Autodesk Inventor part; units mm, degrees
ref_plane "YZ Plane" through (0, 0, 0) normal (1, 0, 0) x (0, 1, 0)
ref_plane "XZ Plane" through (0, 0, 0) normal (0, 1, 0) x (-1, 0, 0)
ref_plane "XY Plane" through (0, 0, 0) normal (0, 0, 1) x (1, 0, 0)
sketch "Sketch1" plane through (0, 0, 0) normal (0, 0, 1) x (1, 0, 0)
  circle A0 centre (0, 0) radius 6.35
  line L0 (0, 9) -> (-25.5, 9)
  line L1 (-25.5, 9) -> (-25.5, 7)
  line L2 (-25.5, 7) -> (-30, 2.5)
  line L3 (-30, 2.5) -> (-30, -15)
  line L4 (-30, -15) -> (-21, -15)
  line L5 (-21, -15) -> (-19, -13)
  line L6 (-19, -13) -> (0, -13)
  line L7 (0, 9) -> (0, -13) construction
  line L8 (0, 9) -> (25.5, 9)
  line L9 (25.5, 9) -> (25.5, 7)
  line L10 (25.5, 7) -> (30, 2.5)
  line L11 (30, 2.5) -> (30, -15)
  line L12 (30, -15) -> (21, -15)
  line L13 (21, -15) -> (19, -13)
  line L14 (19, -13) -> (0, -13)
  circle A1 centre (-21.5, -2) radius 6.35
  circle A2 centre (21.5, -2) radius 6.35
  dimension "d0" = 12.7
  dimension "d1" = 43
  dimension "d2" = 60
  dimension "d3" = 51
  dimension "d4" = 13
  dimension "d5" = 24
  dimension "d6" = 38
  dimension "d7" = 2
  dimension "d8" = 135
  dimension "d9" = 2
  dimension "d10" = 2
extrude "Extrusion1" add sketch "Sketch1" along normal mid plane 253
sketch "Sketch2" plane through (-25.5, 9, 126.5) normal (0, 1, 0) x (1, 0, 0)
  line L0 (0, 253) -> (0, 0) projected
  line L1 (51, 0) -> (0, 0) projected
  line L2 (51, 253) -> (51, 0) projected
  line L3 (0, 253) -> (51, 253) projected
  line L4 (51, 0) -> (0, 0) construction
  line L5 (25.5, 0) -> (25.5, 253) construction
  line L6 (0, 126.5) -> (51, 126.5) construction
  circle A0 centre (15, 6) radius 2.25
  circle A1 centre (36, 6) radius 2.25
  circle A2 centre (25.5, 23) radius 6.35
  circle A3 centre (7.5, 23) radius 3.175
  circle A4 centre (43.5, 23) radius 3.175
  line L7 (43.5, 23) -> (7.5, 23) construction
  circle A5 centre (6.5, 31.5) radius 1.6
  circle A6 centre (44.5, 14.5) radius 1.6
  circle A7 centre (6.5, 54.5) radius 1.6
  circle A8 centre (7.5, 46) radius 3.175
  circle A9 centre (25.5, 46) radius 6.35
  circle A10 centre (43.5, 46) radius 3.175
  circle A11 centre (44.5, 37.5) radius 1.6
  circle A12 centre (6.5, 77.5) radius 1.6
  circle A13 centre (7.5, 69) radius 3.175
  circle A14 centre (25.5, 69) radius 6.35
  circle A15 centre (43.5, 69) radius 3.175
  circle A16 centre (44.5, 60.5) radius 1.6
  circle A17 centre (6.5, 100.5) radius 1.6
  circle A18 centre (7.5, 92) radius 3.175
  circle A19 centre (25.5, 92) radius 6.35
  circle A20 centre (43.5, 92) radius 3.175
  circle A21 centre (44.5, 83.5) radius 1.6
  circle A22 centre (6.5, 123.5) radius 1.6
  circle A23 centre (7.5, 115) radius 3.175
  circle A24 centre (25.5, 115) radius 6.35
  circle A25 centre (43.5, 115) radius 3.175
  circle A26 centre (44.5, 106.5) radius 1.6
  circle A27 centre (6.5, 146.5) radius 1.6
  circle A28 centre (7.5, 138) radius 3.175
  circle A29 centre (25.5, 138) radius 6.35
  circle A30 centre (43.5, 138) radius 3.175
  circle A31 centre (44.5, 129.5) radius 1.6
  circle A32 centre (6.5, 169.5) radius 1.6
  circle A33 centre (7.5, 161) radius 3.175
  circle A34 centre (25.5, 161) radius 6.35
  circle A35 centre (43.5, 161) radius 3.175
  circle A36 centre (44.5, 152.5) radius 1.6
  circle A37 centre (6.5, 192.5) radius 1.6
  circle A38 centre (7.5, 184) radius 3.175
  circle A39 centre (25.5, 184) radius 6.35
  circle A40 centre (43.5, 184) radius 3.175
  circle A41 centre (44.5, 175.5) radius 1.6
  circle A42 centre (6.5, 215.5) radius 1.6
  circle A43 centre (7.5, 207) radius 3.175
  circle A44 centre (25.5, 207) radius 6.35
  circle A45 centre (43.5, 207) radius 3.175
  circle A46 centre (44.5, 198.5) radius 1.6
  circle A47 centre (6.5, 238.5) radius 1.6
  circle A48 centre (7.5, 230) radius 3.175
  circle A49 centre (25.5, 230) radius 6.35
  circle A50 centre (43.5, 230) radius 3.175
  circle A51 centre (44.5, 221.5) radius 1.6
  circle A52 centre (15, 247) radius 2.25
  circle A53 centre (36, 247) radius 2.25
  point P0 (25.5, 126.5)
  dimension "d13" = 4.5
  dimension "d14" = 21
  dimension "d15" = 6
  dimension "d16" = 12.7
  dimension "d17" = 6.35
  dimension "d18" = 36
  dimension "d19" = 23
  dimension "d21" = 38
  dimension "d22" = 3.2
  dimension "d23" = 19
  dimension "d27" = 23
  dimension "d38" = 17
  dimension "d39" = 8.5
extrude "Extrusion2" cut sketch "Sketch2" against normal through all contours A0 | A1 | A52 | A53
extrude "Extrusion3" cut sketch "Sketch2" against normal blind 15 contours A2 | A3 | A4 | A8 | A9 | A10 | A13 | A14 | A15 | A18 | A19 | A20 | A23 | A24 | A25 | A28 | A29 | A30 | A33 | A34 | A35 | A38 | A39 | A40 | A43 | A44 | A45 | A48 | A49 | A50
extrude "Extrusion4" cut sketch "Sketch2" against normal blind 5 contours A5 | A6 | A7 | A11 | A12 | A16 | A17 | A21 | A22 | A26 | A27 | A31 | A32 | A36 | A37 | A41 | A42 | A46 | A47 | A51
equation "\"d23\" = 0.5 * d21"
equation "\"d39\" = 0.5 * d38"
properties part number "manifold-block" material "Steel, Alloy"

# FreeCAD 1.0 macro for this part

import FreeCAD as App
import Part
import Sketcher

V = App.Vector
Q = App.Units.Quantity


def add_polygon(sketch, points):
    """Adds a closed chain of lines whose ends are joined by coincident constraints."""
    first, n = sketch.GeometryCount, len(points)
    for a, b in zip(points, points[1:] + points[:1]):
        sketch.addGeometry(Part.LineSegment(App.Vector(*a, 0), App.Vector(*b, 0)), False)
    for i in range(n):
        sketch.addConstraint(Sketcher.Constraint("Coincident", first + i, 2, first + (i + 1) % n, 1))

doc = App.newDocument("Part")
params = doc.addObject("Spreadsheet::Sheet", "Params")
for row, (alias, value) in enumerate([
    ("sketch1_diameter", "12.7 mm"),
    ("sketch1_width", "51 mm"),
    ("sketch1_width2", "38 mm"),
    ("sketch1_height", "2 mm"),
    ("sketch1_width3", "9 mm"),
    ("pad1_length", "253 mm"),
    ("sketch2_diameter", "4.5 mm"),
    ("sketch3_diameter", "12.7 mm"),
    ("sketch3_diameter2", "6.35 mm"),
    ("pocket2_length", "15 mm"),
    ("sketch4_diameter", "3.2 mm"),
    ("pocket3_length", "5 mm"),
], start=1):
    params.set(f"A{row}", alias)
    params.set(f"B{row}", "=" + value)
    params.setAlias(f"B{row}", alias)

body = doc.addObject("PartDesign::Body", "Body")

# Sketch on XY plane
sketch1 = body.newObject("Sketcher::SketchObject", "Sketch")
sketch1.AttachmentSupport = (doc.getObject("XY_Plane"), [""])
sketch1.MapMode = "FlatFace"
add_polygon(sketch1, [(25.5, 9), (-25.5, 9), (-25.5, 7), (-30, 2.5), (-30, -15), (-21, -15), (-19, -13), (19, -13), (21, -15), (30, -15), (30, 2.5), (25.5, 7)])  # lines 0-11
sketch1.addGeometry(Part.Circle(V(-21.5, -2, 0), V(0, 0, 1), 6.3), False)  # 12
sketch1.addGeometry(Part.Circle(V(0, 0, 0), V(0, 0, 1), 6.3), False)  # 13
sketch1.addGeometry(Part.Circle(V(21.5, -2, 0), V(0, 0, 1), 6.3), False)  # 14
sketch1.addConstraint([
    Sketcher.Constraint("Horizontal", 0),
    Sketcher.Constraint("Vertical", 1),
    Sketcher.Constraint("Vertical", 3),
    Sketcher.Constraint("Horizontal", 4),
    Sketcher.Constraint("Horizontal", 6),
    Sketcher.Constraint("Horizontal", 8),
    Sketcher.Constraint("Vertical", 9),
    Sketcher.Constraint("Vertical", 11),
    Sketcher.Constraint("Coincident", 13, 3, -1, 1),
    Sketcher.Constraint("Equal", 12, 13),
    Sketcher.Constraint("Equal", 13, 14),
    Sketcher.Constraint("Symmetric", 12, 3, 14, 3, -2),
    Sketcher.Constraint("Symmetric", 4, 2, 7, 2, -2),
    Sketcher.Constraint("Symmetric", 2, 2, 9, 2, -2),
    Sketcher.Constraint("Symmetric", 1, 2, 10, 2, -2),
    Sketcher.Constraint("Parallel", 2, 5),
    Sketcher.Constraint("Perpendicular", 5, 7),
    Sketcher.Constraint("Parallel", 7, 10),
    Sketcher.Constraint("Diameter", 12, Q("12.7 mm")),
    Sketcher.Constraint("DistanceX", 0, 2, 0, 1, Q("51 mm")),
    Sketcher.Constraint("DistanceX", 6, 1, 6, 2, Q("38 mm")),
    Sketcher.Constraint("DistanceY", 1, 2, 1, 1, Q("2 mm")),
    Sketcher.Constraint("DistanceY", 12, 3, -1, 1, Q("2 mm")),
    Sketcher.Constraint("DistanceY", 5, 2, -1, 1, Q("13 mm")),
    Sketcher.Constraint("DistanceX", 12, 3, 14, 3, Q("43 mm")),
    Sketcher.Constraint("DistanceY", 3, 2, 12, 3, Q("13 mm")),
    Sketcher.Constraint("DistanceY", 3, 2, 0, 2, Q("24 mm")),
    Sketcher.Constraint("DistanceX", 4, 1, 4, 2, Q("9 mm")),
])
sketch1.setExpression("Constraints[30]", "Params.sketch1_diameter")
sketch1.setExpression("Constraints[31]", "Params.sketch1_width")
sketch1.setExpression("Constraints[32]", "Params.sketch1_width2")
sketch1.setExpression("Constraints[33]", "Params.sketch1_height")
sketch1.setExpression("Constraints[39]", "Params.sketch1_width3")
pad1 = body.newObject("PartDesign::Pad", "Pad")
pad1.Profile = sketch1
pad1.setExpression("Length", "Params.pad1_length")
pad1.Midplane = True

# Sketch on XZ plane
sketch2 = body.newObject("Sketcher::SketchObject", "Sketch001")
sketch2.AttachmentSupport = (doc.getObject("XZ_Plane"), [""])
sketch2.MapMode = "FlatFace"
sketch2.AttachmentOffset = App.Placement(V(0, 0, -9), App.Rotation())
sketch2.addGeometry([
    Part.Circle(V(-10.5, 120.5, 0), V(0, 0, 1), 2.2),
    Part.Circle(V(10.5, 120.5, 0), V(0, 0, 1), 2.2),
    Part.Circle(V(-10.5, -120.5, 0), V(0, 0, 1), 2.2),
    Part.Circle(V(10.5, -120.5, 0), V(0, 0, 1), 2.2),
], False)
sketch2.addConstraint([
    Sketcher.Constraint("Equal", 0, 1),
    Sketcher.Constraint("Equal", 1, 2),
    Sketcher.Constraint("Equal", 2, 3),
    Sketcher.Constraint("Symmetric", 1, 3, 2, 3, -1, 1),
    Sketcher.Constraint("Symmetric", 0, 3, 3, 3, -1, 1),
    Sketcher.Constraint("Symmetric", 0, 3, 1, 3, -2),
    Sketcher.Constraint("Diameter", 0, Q("4.5 mm")),
    Sketcher.Constraint("DistanceX", 0, 3, 1, 3, Q("21 mm")),
    Sketcher.Constraint("DistanceY", 2, 3, 0, 3, Q("241 mm")),
])
sketch2.setExpression("Constraints[6]", "Params.sketch2_diameter")
pocket1 = body.newObject("PartDesign::Pocket", "Pocket")
pocket1.Profile = sketch2
pocket1.Type = "ThroughAll"
pocket1.Reversed = True

# Sketch on XZ plane
sketch3 = body.newObject("Sketcher::SketchObject", "Sketch002")
sketch3.AttachmentSupport = (doc.getObject("XZ_Plane"), [""])
sketch3.MapMode = "FlatFace"
sketch3.AttachmentOffset = App.Placement(V(0, 0, -9), App.Rotation())
sketch3.addGeometry([
    Part.Circle(V(0, 103.5, 0), V(0, 0, 1), 6.3),  # 0
    Part.Circle(V(-18, 103.5, 0), V(0, 0, 1), 3.2),  # 1
    Part.Circle(V(18, 103.5, 0), V(0, 0, 1), 3.2),  # 2
    Part.Circle(V(-18, 80.5, 0), V(0, 0, 1), 3.2),  # 3
    Part.Circle(V(0, 80.5, 0), V(0, 0, 1), 6.3),  # 4
    Part.Circle(V(18, 80.5, 0), V(0, 0, 1), 3.2),  # 5
    Part.Circle(V(-18, 57.5, 0), V(0, 0, 1), 3.2),  # 6
    Part.Circle(V(0, 57.5, 0), V(0, 0, 1), 6.3),  # 7
    Part.Circle(V(18, 57.5, 0), V(0, 0, 1), 3.2),  # 8
    Part.Circle(V(-18, 34.5, 0), V(0, 0, 1), 3.2),  # 9
    Part.Circle(V(0, 34.5, 0), V(0, 0, 1), 6.3),  # 10
    Part.Circle(V(18, 34.5, 0), V(0, 0, 1), 3.2),  # 11
    Part.Circle(V(-18, 11.5, 0), V(0, 0, 1), 3.2),  # 12
    Part.Circle(V(0, 11.5, 0), V(0, 0, 1), 6.3),  # 13
    Part.Circle(V(18, 11.5, 0), V(0, 0, 1), 3.2),  # 14
    Part.Circle(V(-18, -11.5, 0), V(0, 0, 1), 3.2),  # 15
    Part.Circle(V(0, -11.5, 0), V(0, 0, 1), 6.3),  # 16
    Part.Circle(V(18, -11.5, 0), V(0, 0, 1), 3.2),  # 17
    Part.Circle(V(-18, -34.5, 0), V(0, 0, 1), 3.2),  # 18
    Part.Circle(V(0, -34.5, 0), V(0, 0, 1), 6.3),  # 19
    Part.Circle(V(18, -34.5, 0), V(0, 0, 1), 3.2),  # 20
    Part.Circle(V(-18, -57.5, 0), V(0, 0, 1), 3.2),  # 21
    Part.Circle(V(0, -57.5, 0), V(0, 0, 1), 6.3),  # 22
    Part.Circle(V(18, -57.5, 0), V(0, 0, 1), 3.2),  # 23
    Part.Circle(V(-18, -80.5, 0), V(0, 0, 1), 3.2),  # 24
    Part.Circle(V(0, -80.5, 0), V(0, 0, 1), 6.3),  # 25
    Part.Circle(V(18, -80.5, 0), V(0, 0, 1), 3.2),  # 26
    Part.Circle(V(-18, -103.5, 0), V(0, 0, 1), 3.2),  # 27
    Part.Circle(V(0, -103.5, 0), V(0, 0, 1), 6.3),  # 28
    Part.Circle(V(18, -103.5, 0), V(0, 0, 1), 3.2),  # 29
], False)
sketch3.addConstraint([
    Sketcher.Constraint("Equal", 1, 2),
    Sketcher.Constraint("Equal", 2, 3),
    Sketcher.Constraint("Equal", 0, 4),
    Sketcher.Constraint("Equal", 3, 5),
    Sketcher.Constraint("Equal", 5, 6),
    Sketcher.Constraint("Equal", 4, 7),
    Sketcher.Constraint("Equal", 6, 8),
    Sketcher.Constraint("Equal", 8, 9),
    Sketcher.Constraint("Equal", 7, 10),
    Sketcher.Constraint("Equal", 9, 11),
    Sketcher.Constraint("Equal", 11, 12),
    Sketcher.Constraint("Equal", 10, 13),
    Sketcher.Constraint("Equal", 12, 14),
    Sketcher.Constraint("Equal", 14, 15),
    Sketcher.Constraint("Equal", 13, 16),
    Sketcher.Constraint("Equal", 15, 17),
    Sketcher.Constraint("Equal", 17, 18),
    Sketcher.Constraint("Equal", 16, 19),
    Sketcher.Constraint("Equal", 18, 20),
    Sketcher.Constraint("Equal", 20, 21),
    Sketcher.Constraint("Equal", 19, 22),
    Sketcher.Constraint("Equal", 21, 23),
    Sketcher.Constraint("Equal", 23, 24),
    Sketcher.Constraint("Equal", 22, 25),
    Sketcher.Constraint("Equal", 24, 26),
    Sketcher.Constraint("Equal", 26, 27),
    Sketcher.Constraint("Equal", 25, 28),
    Sketcher.Constraint("Equal", 27, 29),
    Sketcher.Constraint("Symmetric", 14, 3, 15, 3, -1, 1),
    Sketcher.Constraint("Symmetric", 13, 3, 16, 3, -1, 1),
    Sketcher.Constraint("Symmetric", 12, 3, 17, 3, -1, 1),
    Sketcher.Constraint("Symmetric", 11, 3, 18, 3, -1, 1),
    Sketcher.Constraint("Symmetric", 10, 3, 19, 3, -1, 1),
    Sketcher.Constraint("Symmetric", 9, 3, 20, 3, -1, 1),
    Sketcher.Constraint("Symmetric", 8, 3, 21, 3, -1, 1),
    Sketcher.Constraint("Symmetric", 7, 3, 22, 3, -1, 1),
    Sketcher.Constraint("Symmetric", 6, 3, 23, 3, -1, 1),
    Sketcher.Constraint("Symmetric", 5, 3, 24, 3, -1, 1),
    Sketcher.Constraint("Symmetric", 4, 3, 25, 3, -1, 1),
    Sketcher.Constraint("Symmetric", 3, 3, 26, 3, -1, 1),
    Sketcher.Constraint("Symmetric", 2, 3, 27, 3, -1, 1),
    Sketcher.Constraint("Symmetric", 0, 3, 28, 3, -1, 1),
    Sketcher.Constraint("Symmetric", 1, 3, 29, 3, -1, 1),
    Sketcher.Constraint("Symmetric", 1, 3, 2, 3, -2),
    Sketcher.Constraint("Symmetric", 3, 3, 5, 3, -2),
    Sketcher.Constraint("Symmetric", 6, 3, 8, 3, -2),
    Sketcher.Constraint("Symmetric", 9, 3, 11, 3, -2),
    Sketcher.Constraint("Symmetric", 12, 3, 14, 3, -2),
    Sketcher.Constraint("PointOnObject", 0, 3, -2),
    Sketcher.Constraint("PointOnObject", 4, 3, -2),
    Sketcher.Constraint("PointOnObject", 7, 3, -2),
    Sketcher.Constraint("PointOnObject", 10, 3, -2),
    Sketcher.Constraint("PointOnObject", 13, 3, -2),
    Sketcher.Constraint("Horizontal", 0, 3, 1, 3),
    Sketcher.Constraint("Horizontal", 3, 3, 4, 3),
    Sketcher.Constraint("Horizontal", 6, 3, 7, 3),
    Sketcher.Constraint("Horizontal", 9, 3, 10, 3),
    Sketcher.Constraint("Horizontal", 12, 3, 13, 3),
    Sketcher.Constraint("Vertical", 1, 3, 3, 3),
    Sketcher.Constraint("Vertical", 3, 3, 6, 3),
    Sketcher.Constraint("Vertical", 6, 3, 9, 3),
    Sketcher.Constraint("Vertical", 9, 3, 12, 3),
    Sketcher.Constraint("Diameter", 0, Q("12.7 mm")),
    Sketcher.Constraint("Diameter", 1, Q("6.35 mm")),
    Sketcher.Constraint("DistanceX", 1, 3, 2, 3, Q("36 mm")),
    Sketcher.Constraint("DistanceY", 3, 3, 1, 3, Q("23 mm")),
    Sketcher.Constraint("DistanceY", 6, 3, 3, 3, Q("23 mm")),
    Sketcher.Constraint("DistanceY", 9, 3, 6, 3, Q("23 mm")),
    Sketcher.Constraint("DistanceY", 12, 3, 9, 3, Q("23 mm")),
    Sketcher.Constraint("DistanceY", 15, 3, 12, 3, Q("23 mm")),
])
sketch3.setExpression("Constraints[62]", "Params.sketch3_diameter")
sketch3.setExpression("Constraints[63]", "Params.sketch3_diameter2")
pocket2 = body.newObject("PartDesign::Pocket", "Pocket001")
pocket2.Profile = sketch3
pocket2.setExpression("Length", "Params.pocket2_length")
pocket2.Reversed = True

# Sketch on XZ plane
sketch4 = body.newObject("Sketcher::SketchObject", "Sketch003")
sketch4.AttachmentSupport = (doc.getObject("XZ_Plane"), [""])
sketch4.MapMode = "FlatFace"
sketch4.AttachmentOffset = App.Placement(V(0, 0, -9), App.Rotation())
sketch4.addGeometry([
    Part.Circle(V(-19, 95, 0), V(0, 0, 1), 1.6),  # 0
    Part.Circle(V(19, 112, 0), V(0, 0, 1), 1.6),  # 1
    Part.Circle(V(-19, 72, 0), V(0, 0, 1), 1.6),  # 2
    Part.Circle(V(19, 89, 0), V(0, 0, 1), 1.6),  # 3
    Part.Circle(V(-19, 49, 0), V(0, 0, 1), 1.6),  # 4
    Part.Circle(V(19, 66, 0), V(0, 0, 1), 1.6),  # 5
    Part.Circle(V(-19, 26, 0), V(0, 0, 1), 1.6),  # 6
    Part.Circle(V(19, 43, 0), V(0, 0, 1), 1.6),  # 7
    Part.Circle(V(-19, 3, 0), V(0, 0, 1), 1.6),  # 8
    Part.Circle(V(19, 20, 0), V(0, 0, 1), 1.6),  # 9
    Part.Circle(V(-19, -20, 0), V(0, 0, 1), 1.6),  # 10
    Part.Circle(V(19, -3, 0), V(0, 0, 1), 1.6),  # 11
    Part.Circle(V(-19, -43, 0), V(0, 0, 1), 1.6),  # 12
    Part.Circle(V(19, -26, 0), V(0, 0, 1), 1.6),  # 13
    Part.Circle(V(-19, -66, 0), V(0, 0, 1), 1.6),  # 14
    Part.Circle(V(19, -49, 0), V(0, 0, 1), 1.6),  # 15
    Part.Circle(V(-19, -89, 0), V(0, 0, 1), 1.6),  # 16
    Part.Circle(V(19, -72, 0), V(0, 0, 1), 1.6),  # 17
    Part.Circle(V(-19, -112, 0), V(0, 0, 1), 1.6),  # 18
    Part.Circle(V(19, -95, 0), V(0, 0, 1), 1.6),  # 19
], False)
sketch4.addConstraint([
    Sketcher.Constraint("Equal", 0, 1),
    Sketcher.Constraint("Equal", 1, 2),
    Sketcher.Constraint("Equal", 2, 3),
    Sketcher.Constraint("Equal", 3, 4),
    Sketcher.Constraint("Equal", 4, 5),
    Sketcher.Constraint("Equal", 5, 6),
    Sketcher.Constraint("Equal", 6, 7),
    Sketcher.Constraint("Equal", 7, 8),
    Sketcher.Constraint("Equal", 8, 9),
    Sketcher.Constraint("Equal", 9, 10),
    Sketcher.Constraint("Equal", 10, 11),
    Sketcher.Constraint("Equal", 11, 12),
    Sketcher.Constraint("Equal", 12, 13),
    Sketcher.Constraint("Equal", 13, 14),
    Sketcher.Constraint("Equal", 14, 15),
    Sketcher.Constraint("Equal", 15, 16),
    Sketcher.Constraint("Equal", 16, 17),
    Sketcher.Constraint("Equal", 17, 18),
    Sketcher.Constraint("Equal", 18, 19),
    Sketcher.Constraint("Symmetric", 9, 3, 10, 3, -1, 1),
    Sketcher.Constraint("Symmetric", 8, 3, 11, 3, -1, 1),
    Sketcher.Constraint("Symmetric", 7, 3, 12, 3, -1, 1),
    Sketcher.Constraint("Symmetric", 6, 3, 13, 3, -1, 1),
    Sketcher.Constraint("Symmetric", 5, 3, 14, 3, -1, 1),
    Sketcher.Constraint("Symmetric", 4, 3, 15, 3, -1, 1),
    Sketcher.Constraint("Symmetric", 3, 3, 16, 3, -1, 1),
    Sketcher.Constraint("Symmetric", 2, 3, 17, 3, -1, 1),
    Sketcher.Constraint("Symmetric", 1, 3, 18, 3, -1, 1),
    Sketcher.Constraint("Symmetric", 0, 3, 19, 3, -1, 1),
    Sketcher.Constraint("Vertical", 0, 3, 2, 3),
    Sketcher.Constraint("Vertical", 1, 3, 3, 3),
    Sketcher.Constraint("Vertical", 2, 3, 4, 3),
    Sketcher.Constraint("Vertical", 3, 3, 5, 3),
    Sketcher.Constraint("Vertical", 4, 3, 6, 3),
    Sketcher.Constraint("Vertical", 5, 3, 7, 3),
    Sketcher.Constraint("Vertical", 6, 3, 8, 3),
    Sketcher.Constraint("Vertical", 7, 3, 9, 3),
    Sketcher.Constraint("Vertical", 8, 3, 10, 3),
    Sketcher.Constraint("Diameter", 0, Q("3.2 mm")),
    Sketcher.Constraint("DistanceX", 0, 3, -1, 1, Q("19 mm")),
    Sketcher.Constraint("DistanceY", 0, 3, 1, 3, Q("17 mm")),
    Sketcher.Constraint("DistanceY", 2, 3, 0, 3, Q("23 mm")),
    Sketcher.Constraint("DistanceY", 3, 3, 1, 3, Q("23 mm")),
    Sketcher.Constraint("DistanceY", 4, 3, 2, 3, Q("23 mm")),
    Sketcher.Constraint("DistanceY", 5, 3, 3, 3, Q("23 mm")),
    Sketcher.Constraint("DistanceY", 6, 3, 4, 3, Q("23 mm")),
    Sketcher.Constraint("DistanceY", 7, 3, 5, 3, Q("23 mm")),
    Sketcher.Constraint("DistanceY", 8, 3, 6, 3, Q("23 mm")),
    Sketcher.Constraint("DistanceY", 9, 3, 7, 3, Q("23 mm")),
    Sketcher.Constraint("DistanceY", 10, 3, 8, 3, Q("23 mm")),
])
sketch4.setExpression("Constraints[38]", "Params.sketch4_diameter")
pocket3 = body.newObject("PartDesign::Pocket", "Pocket002")
pocket3.Profile = sketch4
pocket3.setExpression("Length", "Params.pocket3_length")
pocket3.Reversed = True

doc.recompute()
